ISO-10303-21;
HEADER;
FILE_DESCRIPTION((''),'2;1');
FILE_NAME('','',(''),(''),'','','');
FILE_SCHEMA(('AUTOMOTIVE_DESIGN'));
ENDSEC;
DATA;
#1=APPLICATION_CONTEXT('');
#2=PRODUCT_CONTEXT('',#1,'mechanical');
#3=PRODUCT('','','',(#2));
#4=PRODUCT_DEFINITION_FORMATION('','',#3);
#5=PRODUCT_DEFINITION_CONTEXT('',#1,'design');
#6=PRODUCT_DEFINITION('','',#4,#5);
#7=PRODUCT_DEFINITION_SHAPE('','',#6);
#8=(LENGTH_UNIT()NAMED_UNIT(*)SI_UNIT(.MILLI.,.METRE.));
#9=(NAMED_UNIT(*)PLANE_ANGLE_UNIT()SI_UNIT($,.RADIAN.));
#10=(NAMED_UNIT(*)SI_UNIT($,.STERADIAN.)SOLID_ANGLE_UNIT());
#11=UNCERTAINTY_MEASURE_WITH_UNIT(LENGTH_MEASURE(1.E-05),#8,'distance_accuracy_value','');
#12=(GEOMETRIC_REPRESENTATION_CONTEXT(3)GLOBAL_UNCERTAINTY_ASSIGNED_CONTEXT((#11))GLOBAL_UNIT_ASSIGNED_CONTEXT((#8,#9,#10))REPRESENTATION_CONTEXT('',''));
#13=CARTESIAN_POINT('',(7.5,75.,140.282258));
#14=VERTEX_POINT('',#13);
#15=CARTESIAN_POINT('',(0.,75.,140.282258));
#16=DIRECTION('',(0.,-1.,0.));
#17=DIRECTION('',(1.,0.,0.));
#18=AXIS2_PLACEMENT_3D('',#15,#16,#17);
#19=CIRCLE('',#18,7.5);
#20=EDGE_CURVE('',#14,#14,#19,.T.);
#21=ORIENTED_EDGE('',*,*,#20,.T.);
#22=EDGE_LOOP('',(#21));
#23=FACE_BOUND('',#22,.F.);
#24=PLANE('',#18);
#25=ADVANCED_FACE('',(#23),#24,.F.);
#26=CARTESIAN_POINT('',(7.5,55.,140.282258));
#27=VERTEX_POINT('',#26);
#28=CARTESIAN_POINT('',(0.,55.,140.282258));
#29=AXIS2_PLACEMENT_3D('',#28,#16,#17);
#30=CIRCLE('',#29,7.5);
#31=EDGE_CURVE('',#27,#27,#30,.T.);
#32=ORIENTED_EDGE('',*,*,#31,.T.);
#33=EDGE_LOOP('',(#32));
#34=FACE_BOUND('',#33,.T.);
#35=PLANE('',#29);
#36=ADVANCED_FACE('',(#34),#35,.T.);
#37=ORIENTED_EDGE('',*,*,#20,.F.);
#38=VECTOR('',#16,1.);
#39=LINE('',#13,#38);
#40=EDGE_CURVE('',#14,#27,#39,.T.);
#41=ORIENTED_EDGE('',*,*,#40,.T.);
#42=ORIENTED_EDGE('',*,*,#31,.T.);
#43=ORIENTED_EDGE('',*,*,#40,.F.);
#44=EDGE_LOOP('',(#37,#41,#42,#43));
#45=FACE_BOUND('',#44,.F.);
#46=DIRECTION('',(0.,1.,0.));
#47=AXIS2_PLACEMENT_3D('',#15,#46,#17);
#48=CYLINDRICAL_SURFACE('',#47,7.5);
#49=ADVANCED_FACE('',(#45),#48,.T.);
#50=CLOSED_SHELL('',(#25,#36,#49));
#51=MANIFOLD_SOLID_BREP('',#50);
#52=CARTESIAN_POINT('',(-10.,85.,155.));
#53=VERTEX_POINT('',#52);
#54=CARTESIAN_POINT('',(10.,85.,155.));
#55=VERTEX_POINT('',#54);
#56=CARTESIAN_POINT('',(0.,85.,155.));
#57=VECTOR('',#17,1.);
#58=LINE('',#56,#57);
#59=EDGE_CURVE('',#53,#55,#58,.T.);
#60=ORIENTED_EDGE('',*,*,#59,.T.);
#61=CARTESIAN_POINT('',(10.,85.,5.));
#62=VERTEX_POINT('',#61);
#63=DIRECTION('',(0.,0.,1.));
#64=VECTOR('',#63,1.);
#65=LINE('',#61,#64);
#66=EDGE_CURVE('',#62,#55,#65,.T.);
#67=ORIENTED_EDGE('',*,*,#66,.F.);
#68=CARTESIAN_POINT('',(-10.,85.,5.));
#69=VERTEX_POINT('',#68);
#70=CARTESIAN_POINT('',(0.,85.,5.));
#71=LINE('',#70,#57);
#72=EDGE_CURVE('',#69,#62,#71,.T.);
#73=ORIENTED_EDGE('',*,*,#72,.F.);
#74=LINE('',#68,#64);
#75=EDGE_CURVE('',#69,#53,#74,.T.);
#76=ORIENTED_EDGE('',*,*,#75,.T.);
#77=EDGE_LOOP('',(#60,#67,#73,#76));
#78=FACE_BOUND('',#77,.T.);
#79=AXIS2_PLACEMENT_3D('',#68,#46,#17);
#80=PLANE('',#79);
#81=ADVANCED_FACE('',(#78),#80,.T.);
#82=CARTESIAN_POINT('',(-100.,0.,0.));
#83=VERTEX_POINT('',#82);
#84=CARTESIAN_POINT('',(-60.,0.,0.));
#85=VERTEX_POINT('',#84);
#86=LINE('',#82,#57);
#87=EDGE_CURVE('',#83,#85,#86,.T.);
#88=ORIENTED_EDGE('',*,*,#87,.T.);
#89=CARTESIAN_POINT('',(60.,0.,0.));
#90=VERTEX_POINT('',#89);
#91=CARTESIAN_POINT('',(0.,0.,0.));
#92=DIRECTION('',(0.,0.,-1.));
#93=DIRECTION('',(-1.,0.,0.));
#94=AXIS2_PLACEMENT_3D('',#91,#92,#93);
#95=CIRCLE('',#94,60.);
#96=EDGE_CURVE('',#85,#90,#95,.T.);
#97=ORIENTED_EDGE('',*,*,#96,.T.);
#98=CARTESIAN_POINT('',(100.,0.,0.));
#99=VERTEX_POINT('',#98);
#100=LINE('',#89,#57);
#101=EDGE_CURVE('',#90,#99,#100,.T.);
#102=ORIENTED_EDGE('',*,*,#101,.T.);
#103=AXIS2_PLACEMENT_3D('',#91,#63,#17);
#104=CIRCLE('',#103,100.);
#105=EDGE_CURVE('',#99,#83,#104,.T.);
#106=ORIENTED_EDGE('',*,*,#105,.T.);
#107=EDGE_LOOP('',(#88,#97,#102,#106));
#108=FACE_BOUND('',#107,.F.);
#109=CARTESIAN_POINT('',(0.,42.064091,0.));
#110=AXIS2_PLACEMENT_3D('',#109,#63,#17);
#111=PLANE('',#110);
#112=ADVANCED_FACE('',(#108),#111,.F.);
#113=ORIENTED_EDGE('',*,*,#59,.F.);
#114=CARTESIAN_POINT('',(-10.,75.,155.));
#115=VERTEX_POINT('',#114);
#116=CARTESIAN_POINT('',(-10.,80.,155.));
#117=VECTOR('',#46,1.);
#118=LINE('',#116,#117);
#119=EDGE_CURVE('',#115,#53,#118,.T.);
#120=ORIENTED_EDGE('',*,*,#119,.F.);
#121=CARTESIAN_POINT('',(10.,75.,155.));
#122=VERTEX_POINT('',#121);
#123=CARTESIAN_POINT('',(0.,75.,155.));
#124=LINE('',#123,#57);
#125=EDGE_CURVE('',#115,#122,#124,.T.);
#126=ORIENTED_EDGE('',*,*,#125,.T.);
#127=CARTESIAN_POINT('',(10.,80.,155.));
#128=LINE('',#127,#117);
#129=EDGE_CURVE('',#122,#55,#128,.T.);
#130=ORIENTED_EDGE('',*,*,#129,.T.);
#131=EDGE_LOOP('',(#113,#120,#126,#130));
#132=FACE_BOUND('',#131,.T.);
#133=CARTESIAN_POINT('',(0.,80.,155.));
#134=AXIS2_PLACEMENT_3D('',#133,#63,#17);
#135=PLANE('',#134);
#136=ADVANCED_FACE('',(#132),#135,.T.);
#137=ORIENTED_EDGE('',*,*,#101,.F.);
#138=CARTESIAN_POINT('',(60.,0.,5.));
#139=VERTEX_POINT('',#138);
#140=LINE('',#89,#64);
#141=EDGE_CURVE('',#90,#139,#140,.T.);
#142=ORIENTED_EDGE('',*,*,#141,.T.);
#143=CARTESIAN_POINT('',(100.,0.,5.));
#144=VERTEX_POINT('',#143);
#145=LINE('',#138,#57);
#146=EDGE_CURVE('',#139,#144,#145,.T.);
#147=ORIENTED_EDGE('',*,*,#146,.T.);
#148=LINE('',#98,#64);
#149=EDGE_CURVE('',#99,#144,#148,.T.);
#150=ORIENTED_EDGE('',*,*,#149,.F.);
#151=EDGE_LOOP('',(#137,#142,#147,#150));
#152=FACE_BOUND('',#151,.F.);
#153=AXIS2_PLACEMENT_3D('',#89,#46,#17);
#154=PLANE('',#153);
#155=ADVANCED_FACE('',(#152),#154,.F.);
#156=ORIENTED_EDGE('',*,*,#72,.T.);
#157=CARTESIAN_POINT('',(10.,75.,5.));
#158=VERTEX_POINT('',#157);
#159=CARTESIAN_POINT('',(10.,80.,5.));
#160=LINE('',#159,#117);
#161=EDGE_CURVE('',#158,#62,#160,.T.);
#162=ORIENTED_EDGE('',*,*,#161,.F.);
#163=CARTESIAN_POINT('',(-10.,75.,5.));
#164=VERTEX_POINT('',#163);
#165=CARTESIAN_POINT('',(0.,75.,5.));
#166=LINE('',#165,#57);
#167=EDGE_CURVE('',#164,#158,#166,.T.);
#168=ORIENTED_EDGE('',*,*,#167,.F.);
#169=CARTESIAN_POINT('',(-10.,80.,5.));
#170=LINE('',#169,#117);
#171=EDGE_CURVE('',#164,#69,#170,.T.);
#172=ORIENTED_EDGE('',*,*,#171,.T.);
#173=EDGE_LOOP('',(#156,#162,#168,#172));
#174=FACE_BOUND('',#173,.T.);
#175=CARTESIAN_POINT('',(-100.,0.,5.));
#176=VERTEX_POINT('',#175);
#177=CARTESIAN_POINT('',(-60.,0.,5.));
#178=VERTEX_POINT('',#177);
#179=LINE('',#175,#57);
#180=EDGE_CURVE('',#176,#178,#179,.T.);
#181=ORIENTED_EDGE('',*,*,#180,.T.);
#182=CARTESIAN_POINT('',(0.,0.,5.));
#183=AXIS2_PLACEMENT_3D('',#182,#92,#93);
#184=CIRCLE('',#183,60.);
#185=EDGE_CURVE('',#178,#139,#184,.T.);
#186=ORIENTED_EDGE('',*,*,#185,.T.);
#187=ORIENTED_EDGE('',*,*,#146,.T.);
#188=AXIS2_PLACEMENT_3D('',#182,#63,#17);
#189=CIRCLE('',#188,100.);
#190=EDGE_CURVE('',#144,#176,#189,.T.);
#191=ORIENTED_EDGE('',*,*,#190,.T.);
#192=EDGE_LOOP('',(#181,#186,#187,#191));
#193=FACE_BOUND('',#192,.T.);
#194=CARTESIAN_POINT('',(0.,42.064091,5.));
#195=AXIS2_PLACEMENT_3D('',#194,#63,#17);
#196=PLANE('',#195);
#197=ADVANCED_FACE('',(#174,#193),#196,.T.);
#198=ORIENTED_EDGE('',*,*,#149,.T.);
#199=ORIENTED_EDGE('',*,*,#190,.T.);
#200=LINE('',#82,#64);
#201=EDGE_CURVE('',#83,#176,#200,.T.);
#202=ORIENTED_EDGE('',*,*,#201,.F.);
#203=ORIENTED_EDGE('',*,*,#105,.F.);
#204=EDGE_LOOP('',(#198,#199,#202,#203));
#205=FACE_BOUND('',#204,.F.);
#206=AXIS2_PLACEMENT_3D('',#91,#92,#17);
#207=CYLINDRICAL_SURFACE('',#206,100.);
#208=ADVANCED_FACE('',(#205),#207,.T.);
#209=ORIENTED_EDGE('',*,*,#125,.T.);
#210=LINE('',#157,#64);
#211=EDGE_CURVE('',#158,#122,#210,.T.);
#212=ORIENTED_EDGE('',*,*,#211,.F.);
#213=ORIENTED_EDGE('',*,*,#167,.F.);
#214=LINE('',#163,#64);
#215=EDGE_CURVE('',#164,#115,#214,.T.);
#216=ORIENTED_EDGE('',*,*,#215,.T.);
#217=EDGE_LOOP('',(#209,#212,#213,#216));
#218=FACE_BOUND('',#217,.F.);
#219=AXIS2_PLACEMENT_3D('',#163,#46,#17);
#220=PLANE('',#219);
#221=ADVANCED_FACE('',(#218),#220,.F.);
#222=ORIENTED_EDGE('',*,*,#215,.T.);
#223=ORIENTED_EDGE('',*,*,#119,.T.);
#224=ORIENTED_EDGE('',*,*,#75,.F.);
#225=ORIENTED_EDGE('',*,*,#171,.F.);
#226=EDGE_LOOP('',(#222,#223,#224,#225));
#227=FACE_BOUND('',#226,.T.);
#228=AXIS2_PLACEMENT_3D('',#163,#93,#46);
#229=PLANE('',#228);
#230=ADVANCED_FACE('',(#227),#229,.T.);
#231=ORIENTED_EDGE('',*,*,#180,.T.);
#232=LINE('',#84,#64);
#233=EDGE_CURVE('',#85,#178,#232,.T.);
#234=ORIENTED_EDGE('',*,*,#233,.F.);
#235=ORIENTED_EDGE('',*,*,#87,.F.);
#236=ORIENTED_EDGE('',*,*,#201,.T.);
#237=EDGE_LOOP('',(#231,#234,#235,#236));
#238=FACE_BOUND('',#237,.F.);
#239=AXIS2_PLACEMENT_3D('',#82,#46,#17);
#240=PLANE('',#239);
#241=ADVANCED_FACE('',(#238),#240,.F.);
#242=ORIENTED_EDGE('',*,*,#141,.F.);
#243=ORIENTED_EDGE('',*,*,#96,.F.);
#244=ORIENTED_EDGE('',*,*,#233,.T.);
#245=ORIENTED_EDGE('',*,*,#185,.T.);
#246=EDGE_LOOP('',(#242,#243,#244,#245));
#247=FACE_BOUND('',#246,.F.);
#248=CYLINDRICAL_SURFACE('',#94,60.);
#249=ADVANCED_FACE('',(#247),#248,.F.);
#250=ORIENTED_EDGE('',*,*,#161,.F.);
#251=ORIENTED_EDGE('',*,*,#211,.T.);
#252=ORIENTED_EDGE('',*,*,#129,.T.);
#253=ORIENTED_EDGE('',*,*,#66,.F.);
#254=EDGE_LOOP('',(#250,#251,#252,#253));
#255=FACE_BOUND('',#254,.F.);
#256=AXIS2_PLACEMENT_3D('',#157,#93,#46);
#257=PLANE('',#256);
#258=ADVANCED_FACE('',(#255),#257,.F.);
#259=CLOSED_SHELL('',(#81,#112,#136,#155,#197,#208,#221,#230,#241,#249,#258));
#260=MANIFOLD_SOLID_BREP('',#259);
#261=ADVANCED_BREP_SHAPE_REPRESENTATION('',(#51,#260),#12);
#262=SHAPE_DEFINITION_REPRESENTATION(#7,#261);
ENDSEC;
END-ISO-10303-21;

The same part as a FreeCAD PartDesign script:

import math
import FreeCAD as App
import Part
import Sketcher
from FreeCAD import Vector
Q = App.Units.Quantity

doc = App.newDocument("Part")
body = doc.addObject("PartDesign::Body", "Body")

sketch1 = body.newObject("Sketcher::SketchObject", "Sketch")
sketch1.AttachmentSupport = (doc.getObject("XY_Plane"), [""])
sketch1.MapMode = "FlatFace"
sketch1.addGeometry([
    Part.LineSegment(Vector(60, 0, 0), Vector(100, 0, 0)),
    Part.ArcOfCircle(Part.Circle(Vector(0, 0, 0), Vector(0, 0, 1), 100), math.radians(0), math.radians(180)),
    Part.LineSegment(Vector(-100, 0, 0), Vector(-60, 0, 0)),
    Part.ArcOfCircle(Part.Circle(Vector(0, 0, 0), Vector(0, 0, 1), 60), math.radians(0), math.radians(180)),
], False)
sketch1.addConstraint([
    Sketcher.Constraint("Coincident", 0, 2, 1, 1),
    Sketcher.Constraint("Coincident", 1, 2, 2, 1),
    Sketcher.Constraint("Coincident", 2, 2, 3, 2),
    Sketcher.Constraint("Coincident", 3, 1, 0, 1),
    Sketcher.Constraint("Horizontal", 0),
    Sketcher.Constraint("Horizontal", 2),
    Sketcher.Constraint("Coincident", 1, 3, -1, 1),
    Sketcher.Constraint("Coincident", 3, 3, -1, 1),
    Sketcher.Constraint("PointOnObject", 0, 2, -1),
    Sketcher.Constraint("PointOnObject", 1, 2, -1),
    Sketcher.Constraint("Radius", 1, Q("100 mm")),
    Sketcher.Constraint("Radius", 3, Q("60 mm")),
])
pad1 = body.newObject("PartDesign::Pad", "Pad")
pad1.Profile = sketch1
pad1.Length = 5

sketch2 = body.newObject("Sketcher::SketchObject", "Sketch001")
sketch2.AttachmentSupport = (doc.getObject("XY_Plane"), [""])
sketch2.MapMode = "FlatFace"
sketch2.AttachmentOffset = App.Placement(Vector(0, 0, 5), App.Rotation())
sketch2.addGeometry([
    Part.LineSegment(Vector(-10, 85, 0), Vector(-10, 75, 0)),
    Part.LineSegment(Vector(-10, 75, 0), Vector(10, 75, 0)),
    Part.LineSegment(Vector(10, 75, 0), Vector(10, 85, 0)),
    Part.LineSegment(Vector(10, 85, 0), Vector(-10, 85, 0)),
], False)
sketch2.addConstraint([
    Sketcher.Constraint("Coincident", 0, 2, 1, 1),
    Sketcher.Constraint("Coincident", 1, 2, 2, 1),
    Sketcher.Constraint("Coincident", 2, 2, 3, 1),
    Sketcher.Constraint("Coincident", 3, 2, 0, 1),
    Sketcher.Constraint("Vertical", 0),
    Sketcher.Constraint("Horizontal", 1),
    Sketcher.Constraint("Vertical", 2),
    Sketcher.Constraint("Horizontal", 3),
    Sketcher.Constraint("DistanceX", 1, 1, 1, 2, Q("20 mm")),
    Sketcher.Constraint("DistanceY", 0, 2, 0, 1, Q("10 mm")),
    Sketcher.Constraint("DistanceX", 0, 2, -1, 1, Q("10 mm")),
    Sketcher.Constraint("DistanceY", -1, 1, 0, 2, Q("75 mm")),
])
pad2 = body.newObject("PartDesign::Pad", "Pad001")
pad2.Profile = sketch2
pad2.Length = 150
body2 = doc.addObject("PartDesign::Body", "Body001")

sketch3 = body2.newObject("Sketcher::SketchObject", "Sketch002")
sketch3.AttachmentSupport = (doc.getObject("XZ_Plane001"), [""])
sketch3.MapMode = "FlatFace"
sketch3.AttachmentOffset = App.Placement(Vector(0, 0, -75), App.Rotation())
sketch3.addGeometry(Part.Circle(Vector(0, 140, 0), Vector(0, 0, 1), 8), False)
sketch3.addConstraint([
    Sketcher.Constraint("PointOnObject", 0, 3, -2),
    Sketcher.Constraint("Diameter", 0, Q("15 mm")),
    Sketcher.Constraint("DistanceY", -1, 1, 0, 3, Q("140.282258 mm")),
])
pad3 = body2.newObject("PartDesign::Pad", "Pad002")
pad3.Profile = sketch3
pad3.Length = 20

doc.recompute()
